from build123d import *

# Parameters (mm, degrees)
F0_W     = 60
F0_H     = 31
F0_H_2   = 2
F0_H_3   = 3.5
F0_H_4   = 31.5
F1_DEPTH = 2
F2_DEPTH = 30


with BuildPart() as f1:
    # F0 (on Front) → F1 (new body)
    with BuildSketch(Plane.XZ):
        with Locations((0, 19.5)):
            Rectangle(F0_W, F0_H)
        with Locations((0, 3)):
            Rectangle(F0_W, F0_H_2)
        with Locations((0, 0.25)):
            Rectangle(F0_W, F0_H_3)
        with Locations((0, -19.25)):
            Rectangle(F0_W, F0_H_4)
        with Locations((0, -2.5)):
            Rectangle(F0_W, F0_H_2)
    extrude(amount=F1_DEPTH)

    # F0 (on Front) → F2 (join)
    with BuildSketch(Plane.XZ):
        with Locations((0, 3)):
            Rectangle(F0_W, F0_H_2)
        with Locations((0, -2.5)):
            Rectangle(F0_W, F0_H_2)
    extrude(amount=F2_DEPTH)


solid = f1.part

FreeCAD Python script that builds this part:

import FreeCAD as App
import Part
import Sketcher
Q = App.Units.Quantity

doc = App.newDocument("Part")
body = doc.addObject("PartDesign::Body", "Body")

# Sketch on XZ plane
sketch1 = doc.addObject("Sketcher::SketchObject", "Sketch")
body.addObject(sketch1)
sketch1.AttachmentSupport = (doc.XZ_Plane, [""])
sketch1.MapMode = "FlatFace"
sketch1.addGeometry([
    Part.LineSegment(App.Vector(-30, 35, 0), App.Vector(-30, -35, 0)),
    Part.LineSegment(App.Vector(-30, -35, 0), App.Vector(30, -35, 0)),
    Part.LineSegment(App.Vector(30, -35, 0), App.Vector(30, 35, 0)),
    Part.LineSegment(App.Vector(30, 35, 0), App.Vector(-30, 35, 0)),
], False)
sketch1.addConstraint([
    Sketcher.Constraint("Coincident", 0, 2, 1, 1),
    Sketcher.Constraint("Coincident", 1, 2, 2, 1),
    Sketcher.Constraint("Coincident", 2, 2, 3, 1),
    Sketcher.Constraint("Coincident", 3, 2, 0, 1),
    Sketcher.Constraint("Vertical", 0),
    Sketcher.Constraint("Horizontal", 1),
    Sketcher.Constraint("Vertical", 2),
    Sketcher.Constraint("Horizontal", 3),
    Sketcher.Constraint("Symmetric", 0, 2, 2, 2, -1, 1),
    Sketcher.Constraint("DistanceX", 1, 1, 1, 2, Q("60 mm")),
    Sketcher.Constraint("DistanceY", 0, 2, 0, 1, Q("70 mm")),
])
pad1 = doc.addObject("PartDesign::Pad", "Pad")
body.addObject(pad1)
pad1.Profile = sketch1
pad1.Length = 2

# Sketch on XZ plane
sketch2 = doc.addObject("Sketcher::SketchObject", "Sketch001")
body.addObject(sketch2)
sketch2.AttachmentSupport = (doc.XZ_Plane, [""])
sketch2.MapMode = "FlatFace"
sketch2.addGeometry([
    Part.LineSegment(App.Vector(-30, 4, 0), App.Vector(-30, 2, 0)),  # 0
    Part.LineSegment(App.Vector(-30, 2, 0), App.Vector(30, 2, 0)),  # 1
    Part.LineSegment(App.Vector(30, 2, 0), App.Vector(30, 4, 0)),  # 2
    Part.LineSegment(App.Vector(30, 4, 0), App.Vector(-30, 4, 0)),  # 3
    Part.LineSegment(App.Vector(-30, -1.5, 0), App.Vector(-30, -3.5, 0)),  # 4
    Part.LineSegment(App.Vector(-30, -3.5, 0), App.Vector(30, -3.5, 0)),  # 5
    Part.LineSegment(App.Vector(30, -3.5, 0), App.Vector(30, -1.5, 0)),  # 6
    Part.LineSegment(App.Vector(30, -1.5, 0), App.Vector(-30, -1.5, 0)),  # 7
], False)
sketch2.addConstraint([
    Sketcher.Constraint("Coincident", 0, 2, 1, 1),
    Sketcher.Constraint("Coincident", 1, 2, 2, 1),
    Sketcher.Constraint("Coincident", 2, 2, 3, 1),
    Sketcher.Constraint("Coincident", 3, 2, 0, 1),
    Sketcher.Constraint("Coincident", 4, 2, 5, 1),
    Sketcher.Constraint("Coincident", 5, 2, 6, 1),
    Sketcher.Constraint("Coincident", 6, 2, 7, 1),
    Sketcher.Constraint("Coincident", 7, 2, 4, 1),
    Sketcher.Constraint("Vertical", 0),
    Sketcher.Constraint("Horizontal", 1),
    Sketcher.Constraint("Vertical", 2),
    Sketcher.Constraint("Horizontal", 3),
    Sketcher.Constraint("Vertical", 4),
    Sketcher.Constraint("Horizontal", 5),
    Sketcher.Constraint("Vertical", 6),
    Sketcher.Constraint("Horizontal", 7),
    Sketcher.Constraint("Vertical", 3, 2, 4, 2),
    Sketcher.Constraint("Vertical", 2, 2, 5, 2),
    Sketcher.Constraint("Equal", 2, 4),
    Sketcher.Constraint("DistanceX", 1, 1, 1, 2, Q("60 mm")),
    Sketcher.Constraint("DistanceY", 0, 2, 0, 1, Q("2 mm")),
    Sketcher.Constraint("DistanceX", 0, 2, -1, 1, Q("30 mm")),
    Sketcher.Constraint("DistanceY", -1, 1, 0, 2, Q("2 mm")),
    Sketcher.Constraint("DistanceY", 4, 2, -1, 1, Q("3.5 mm")),
])
pad2 = doc.addObject("PartDesign::Pad", "Pad001")
body.addObject(pad2)
pad2.Profile = sketch2
pad2.Length = 30

doc.recompute()
